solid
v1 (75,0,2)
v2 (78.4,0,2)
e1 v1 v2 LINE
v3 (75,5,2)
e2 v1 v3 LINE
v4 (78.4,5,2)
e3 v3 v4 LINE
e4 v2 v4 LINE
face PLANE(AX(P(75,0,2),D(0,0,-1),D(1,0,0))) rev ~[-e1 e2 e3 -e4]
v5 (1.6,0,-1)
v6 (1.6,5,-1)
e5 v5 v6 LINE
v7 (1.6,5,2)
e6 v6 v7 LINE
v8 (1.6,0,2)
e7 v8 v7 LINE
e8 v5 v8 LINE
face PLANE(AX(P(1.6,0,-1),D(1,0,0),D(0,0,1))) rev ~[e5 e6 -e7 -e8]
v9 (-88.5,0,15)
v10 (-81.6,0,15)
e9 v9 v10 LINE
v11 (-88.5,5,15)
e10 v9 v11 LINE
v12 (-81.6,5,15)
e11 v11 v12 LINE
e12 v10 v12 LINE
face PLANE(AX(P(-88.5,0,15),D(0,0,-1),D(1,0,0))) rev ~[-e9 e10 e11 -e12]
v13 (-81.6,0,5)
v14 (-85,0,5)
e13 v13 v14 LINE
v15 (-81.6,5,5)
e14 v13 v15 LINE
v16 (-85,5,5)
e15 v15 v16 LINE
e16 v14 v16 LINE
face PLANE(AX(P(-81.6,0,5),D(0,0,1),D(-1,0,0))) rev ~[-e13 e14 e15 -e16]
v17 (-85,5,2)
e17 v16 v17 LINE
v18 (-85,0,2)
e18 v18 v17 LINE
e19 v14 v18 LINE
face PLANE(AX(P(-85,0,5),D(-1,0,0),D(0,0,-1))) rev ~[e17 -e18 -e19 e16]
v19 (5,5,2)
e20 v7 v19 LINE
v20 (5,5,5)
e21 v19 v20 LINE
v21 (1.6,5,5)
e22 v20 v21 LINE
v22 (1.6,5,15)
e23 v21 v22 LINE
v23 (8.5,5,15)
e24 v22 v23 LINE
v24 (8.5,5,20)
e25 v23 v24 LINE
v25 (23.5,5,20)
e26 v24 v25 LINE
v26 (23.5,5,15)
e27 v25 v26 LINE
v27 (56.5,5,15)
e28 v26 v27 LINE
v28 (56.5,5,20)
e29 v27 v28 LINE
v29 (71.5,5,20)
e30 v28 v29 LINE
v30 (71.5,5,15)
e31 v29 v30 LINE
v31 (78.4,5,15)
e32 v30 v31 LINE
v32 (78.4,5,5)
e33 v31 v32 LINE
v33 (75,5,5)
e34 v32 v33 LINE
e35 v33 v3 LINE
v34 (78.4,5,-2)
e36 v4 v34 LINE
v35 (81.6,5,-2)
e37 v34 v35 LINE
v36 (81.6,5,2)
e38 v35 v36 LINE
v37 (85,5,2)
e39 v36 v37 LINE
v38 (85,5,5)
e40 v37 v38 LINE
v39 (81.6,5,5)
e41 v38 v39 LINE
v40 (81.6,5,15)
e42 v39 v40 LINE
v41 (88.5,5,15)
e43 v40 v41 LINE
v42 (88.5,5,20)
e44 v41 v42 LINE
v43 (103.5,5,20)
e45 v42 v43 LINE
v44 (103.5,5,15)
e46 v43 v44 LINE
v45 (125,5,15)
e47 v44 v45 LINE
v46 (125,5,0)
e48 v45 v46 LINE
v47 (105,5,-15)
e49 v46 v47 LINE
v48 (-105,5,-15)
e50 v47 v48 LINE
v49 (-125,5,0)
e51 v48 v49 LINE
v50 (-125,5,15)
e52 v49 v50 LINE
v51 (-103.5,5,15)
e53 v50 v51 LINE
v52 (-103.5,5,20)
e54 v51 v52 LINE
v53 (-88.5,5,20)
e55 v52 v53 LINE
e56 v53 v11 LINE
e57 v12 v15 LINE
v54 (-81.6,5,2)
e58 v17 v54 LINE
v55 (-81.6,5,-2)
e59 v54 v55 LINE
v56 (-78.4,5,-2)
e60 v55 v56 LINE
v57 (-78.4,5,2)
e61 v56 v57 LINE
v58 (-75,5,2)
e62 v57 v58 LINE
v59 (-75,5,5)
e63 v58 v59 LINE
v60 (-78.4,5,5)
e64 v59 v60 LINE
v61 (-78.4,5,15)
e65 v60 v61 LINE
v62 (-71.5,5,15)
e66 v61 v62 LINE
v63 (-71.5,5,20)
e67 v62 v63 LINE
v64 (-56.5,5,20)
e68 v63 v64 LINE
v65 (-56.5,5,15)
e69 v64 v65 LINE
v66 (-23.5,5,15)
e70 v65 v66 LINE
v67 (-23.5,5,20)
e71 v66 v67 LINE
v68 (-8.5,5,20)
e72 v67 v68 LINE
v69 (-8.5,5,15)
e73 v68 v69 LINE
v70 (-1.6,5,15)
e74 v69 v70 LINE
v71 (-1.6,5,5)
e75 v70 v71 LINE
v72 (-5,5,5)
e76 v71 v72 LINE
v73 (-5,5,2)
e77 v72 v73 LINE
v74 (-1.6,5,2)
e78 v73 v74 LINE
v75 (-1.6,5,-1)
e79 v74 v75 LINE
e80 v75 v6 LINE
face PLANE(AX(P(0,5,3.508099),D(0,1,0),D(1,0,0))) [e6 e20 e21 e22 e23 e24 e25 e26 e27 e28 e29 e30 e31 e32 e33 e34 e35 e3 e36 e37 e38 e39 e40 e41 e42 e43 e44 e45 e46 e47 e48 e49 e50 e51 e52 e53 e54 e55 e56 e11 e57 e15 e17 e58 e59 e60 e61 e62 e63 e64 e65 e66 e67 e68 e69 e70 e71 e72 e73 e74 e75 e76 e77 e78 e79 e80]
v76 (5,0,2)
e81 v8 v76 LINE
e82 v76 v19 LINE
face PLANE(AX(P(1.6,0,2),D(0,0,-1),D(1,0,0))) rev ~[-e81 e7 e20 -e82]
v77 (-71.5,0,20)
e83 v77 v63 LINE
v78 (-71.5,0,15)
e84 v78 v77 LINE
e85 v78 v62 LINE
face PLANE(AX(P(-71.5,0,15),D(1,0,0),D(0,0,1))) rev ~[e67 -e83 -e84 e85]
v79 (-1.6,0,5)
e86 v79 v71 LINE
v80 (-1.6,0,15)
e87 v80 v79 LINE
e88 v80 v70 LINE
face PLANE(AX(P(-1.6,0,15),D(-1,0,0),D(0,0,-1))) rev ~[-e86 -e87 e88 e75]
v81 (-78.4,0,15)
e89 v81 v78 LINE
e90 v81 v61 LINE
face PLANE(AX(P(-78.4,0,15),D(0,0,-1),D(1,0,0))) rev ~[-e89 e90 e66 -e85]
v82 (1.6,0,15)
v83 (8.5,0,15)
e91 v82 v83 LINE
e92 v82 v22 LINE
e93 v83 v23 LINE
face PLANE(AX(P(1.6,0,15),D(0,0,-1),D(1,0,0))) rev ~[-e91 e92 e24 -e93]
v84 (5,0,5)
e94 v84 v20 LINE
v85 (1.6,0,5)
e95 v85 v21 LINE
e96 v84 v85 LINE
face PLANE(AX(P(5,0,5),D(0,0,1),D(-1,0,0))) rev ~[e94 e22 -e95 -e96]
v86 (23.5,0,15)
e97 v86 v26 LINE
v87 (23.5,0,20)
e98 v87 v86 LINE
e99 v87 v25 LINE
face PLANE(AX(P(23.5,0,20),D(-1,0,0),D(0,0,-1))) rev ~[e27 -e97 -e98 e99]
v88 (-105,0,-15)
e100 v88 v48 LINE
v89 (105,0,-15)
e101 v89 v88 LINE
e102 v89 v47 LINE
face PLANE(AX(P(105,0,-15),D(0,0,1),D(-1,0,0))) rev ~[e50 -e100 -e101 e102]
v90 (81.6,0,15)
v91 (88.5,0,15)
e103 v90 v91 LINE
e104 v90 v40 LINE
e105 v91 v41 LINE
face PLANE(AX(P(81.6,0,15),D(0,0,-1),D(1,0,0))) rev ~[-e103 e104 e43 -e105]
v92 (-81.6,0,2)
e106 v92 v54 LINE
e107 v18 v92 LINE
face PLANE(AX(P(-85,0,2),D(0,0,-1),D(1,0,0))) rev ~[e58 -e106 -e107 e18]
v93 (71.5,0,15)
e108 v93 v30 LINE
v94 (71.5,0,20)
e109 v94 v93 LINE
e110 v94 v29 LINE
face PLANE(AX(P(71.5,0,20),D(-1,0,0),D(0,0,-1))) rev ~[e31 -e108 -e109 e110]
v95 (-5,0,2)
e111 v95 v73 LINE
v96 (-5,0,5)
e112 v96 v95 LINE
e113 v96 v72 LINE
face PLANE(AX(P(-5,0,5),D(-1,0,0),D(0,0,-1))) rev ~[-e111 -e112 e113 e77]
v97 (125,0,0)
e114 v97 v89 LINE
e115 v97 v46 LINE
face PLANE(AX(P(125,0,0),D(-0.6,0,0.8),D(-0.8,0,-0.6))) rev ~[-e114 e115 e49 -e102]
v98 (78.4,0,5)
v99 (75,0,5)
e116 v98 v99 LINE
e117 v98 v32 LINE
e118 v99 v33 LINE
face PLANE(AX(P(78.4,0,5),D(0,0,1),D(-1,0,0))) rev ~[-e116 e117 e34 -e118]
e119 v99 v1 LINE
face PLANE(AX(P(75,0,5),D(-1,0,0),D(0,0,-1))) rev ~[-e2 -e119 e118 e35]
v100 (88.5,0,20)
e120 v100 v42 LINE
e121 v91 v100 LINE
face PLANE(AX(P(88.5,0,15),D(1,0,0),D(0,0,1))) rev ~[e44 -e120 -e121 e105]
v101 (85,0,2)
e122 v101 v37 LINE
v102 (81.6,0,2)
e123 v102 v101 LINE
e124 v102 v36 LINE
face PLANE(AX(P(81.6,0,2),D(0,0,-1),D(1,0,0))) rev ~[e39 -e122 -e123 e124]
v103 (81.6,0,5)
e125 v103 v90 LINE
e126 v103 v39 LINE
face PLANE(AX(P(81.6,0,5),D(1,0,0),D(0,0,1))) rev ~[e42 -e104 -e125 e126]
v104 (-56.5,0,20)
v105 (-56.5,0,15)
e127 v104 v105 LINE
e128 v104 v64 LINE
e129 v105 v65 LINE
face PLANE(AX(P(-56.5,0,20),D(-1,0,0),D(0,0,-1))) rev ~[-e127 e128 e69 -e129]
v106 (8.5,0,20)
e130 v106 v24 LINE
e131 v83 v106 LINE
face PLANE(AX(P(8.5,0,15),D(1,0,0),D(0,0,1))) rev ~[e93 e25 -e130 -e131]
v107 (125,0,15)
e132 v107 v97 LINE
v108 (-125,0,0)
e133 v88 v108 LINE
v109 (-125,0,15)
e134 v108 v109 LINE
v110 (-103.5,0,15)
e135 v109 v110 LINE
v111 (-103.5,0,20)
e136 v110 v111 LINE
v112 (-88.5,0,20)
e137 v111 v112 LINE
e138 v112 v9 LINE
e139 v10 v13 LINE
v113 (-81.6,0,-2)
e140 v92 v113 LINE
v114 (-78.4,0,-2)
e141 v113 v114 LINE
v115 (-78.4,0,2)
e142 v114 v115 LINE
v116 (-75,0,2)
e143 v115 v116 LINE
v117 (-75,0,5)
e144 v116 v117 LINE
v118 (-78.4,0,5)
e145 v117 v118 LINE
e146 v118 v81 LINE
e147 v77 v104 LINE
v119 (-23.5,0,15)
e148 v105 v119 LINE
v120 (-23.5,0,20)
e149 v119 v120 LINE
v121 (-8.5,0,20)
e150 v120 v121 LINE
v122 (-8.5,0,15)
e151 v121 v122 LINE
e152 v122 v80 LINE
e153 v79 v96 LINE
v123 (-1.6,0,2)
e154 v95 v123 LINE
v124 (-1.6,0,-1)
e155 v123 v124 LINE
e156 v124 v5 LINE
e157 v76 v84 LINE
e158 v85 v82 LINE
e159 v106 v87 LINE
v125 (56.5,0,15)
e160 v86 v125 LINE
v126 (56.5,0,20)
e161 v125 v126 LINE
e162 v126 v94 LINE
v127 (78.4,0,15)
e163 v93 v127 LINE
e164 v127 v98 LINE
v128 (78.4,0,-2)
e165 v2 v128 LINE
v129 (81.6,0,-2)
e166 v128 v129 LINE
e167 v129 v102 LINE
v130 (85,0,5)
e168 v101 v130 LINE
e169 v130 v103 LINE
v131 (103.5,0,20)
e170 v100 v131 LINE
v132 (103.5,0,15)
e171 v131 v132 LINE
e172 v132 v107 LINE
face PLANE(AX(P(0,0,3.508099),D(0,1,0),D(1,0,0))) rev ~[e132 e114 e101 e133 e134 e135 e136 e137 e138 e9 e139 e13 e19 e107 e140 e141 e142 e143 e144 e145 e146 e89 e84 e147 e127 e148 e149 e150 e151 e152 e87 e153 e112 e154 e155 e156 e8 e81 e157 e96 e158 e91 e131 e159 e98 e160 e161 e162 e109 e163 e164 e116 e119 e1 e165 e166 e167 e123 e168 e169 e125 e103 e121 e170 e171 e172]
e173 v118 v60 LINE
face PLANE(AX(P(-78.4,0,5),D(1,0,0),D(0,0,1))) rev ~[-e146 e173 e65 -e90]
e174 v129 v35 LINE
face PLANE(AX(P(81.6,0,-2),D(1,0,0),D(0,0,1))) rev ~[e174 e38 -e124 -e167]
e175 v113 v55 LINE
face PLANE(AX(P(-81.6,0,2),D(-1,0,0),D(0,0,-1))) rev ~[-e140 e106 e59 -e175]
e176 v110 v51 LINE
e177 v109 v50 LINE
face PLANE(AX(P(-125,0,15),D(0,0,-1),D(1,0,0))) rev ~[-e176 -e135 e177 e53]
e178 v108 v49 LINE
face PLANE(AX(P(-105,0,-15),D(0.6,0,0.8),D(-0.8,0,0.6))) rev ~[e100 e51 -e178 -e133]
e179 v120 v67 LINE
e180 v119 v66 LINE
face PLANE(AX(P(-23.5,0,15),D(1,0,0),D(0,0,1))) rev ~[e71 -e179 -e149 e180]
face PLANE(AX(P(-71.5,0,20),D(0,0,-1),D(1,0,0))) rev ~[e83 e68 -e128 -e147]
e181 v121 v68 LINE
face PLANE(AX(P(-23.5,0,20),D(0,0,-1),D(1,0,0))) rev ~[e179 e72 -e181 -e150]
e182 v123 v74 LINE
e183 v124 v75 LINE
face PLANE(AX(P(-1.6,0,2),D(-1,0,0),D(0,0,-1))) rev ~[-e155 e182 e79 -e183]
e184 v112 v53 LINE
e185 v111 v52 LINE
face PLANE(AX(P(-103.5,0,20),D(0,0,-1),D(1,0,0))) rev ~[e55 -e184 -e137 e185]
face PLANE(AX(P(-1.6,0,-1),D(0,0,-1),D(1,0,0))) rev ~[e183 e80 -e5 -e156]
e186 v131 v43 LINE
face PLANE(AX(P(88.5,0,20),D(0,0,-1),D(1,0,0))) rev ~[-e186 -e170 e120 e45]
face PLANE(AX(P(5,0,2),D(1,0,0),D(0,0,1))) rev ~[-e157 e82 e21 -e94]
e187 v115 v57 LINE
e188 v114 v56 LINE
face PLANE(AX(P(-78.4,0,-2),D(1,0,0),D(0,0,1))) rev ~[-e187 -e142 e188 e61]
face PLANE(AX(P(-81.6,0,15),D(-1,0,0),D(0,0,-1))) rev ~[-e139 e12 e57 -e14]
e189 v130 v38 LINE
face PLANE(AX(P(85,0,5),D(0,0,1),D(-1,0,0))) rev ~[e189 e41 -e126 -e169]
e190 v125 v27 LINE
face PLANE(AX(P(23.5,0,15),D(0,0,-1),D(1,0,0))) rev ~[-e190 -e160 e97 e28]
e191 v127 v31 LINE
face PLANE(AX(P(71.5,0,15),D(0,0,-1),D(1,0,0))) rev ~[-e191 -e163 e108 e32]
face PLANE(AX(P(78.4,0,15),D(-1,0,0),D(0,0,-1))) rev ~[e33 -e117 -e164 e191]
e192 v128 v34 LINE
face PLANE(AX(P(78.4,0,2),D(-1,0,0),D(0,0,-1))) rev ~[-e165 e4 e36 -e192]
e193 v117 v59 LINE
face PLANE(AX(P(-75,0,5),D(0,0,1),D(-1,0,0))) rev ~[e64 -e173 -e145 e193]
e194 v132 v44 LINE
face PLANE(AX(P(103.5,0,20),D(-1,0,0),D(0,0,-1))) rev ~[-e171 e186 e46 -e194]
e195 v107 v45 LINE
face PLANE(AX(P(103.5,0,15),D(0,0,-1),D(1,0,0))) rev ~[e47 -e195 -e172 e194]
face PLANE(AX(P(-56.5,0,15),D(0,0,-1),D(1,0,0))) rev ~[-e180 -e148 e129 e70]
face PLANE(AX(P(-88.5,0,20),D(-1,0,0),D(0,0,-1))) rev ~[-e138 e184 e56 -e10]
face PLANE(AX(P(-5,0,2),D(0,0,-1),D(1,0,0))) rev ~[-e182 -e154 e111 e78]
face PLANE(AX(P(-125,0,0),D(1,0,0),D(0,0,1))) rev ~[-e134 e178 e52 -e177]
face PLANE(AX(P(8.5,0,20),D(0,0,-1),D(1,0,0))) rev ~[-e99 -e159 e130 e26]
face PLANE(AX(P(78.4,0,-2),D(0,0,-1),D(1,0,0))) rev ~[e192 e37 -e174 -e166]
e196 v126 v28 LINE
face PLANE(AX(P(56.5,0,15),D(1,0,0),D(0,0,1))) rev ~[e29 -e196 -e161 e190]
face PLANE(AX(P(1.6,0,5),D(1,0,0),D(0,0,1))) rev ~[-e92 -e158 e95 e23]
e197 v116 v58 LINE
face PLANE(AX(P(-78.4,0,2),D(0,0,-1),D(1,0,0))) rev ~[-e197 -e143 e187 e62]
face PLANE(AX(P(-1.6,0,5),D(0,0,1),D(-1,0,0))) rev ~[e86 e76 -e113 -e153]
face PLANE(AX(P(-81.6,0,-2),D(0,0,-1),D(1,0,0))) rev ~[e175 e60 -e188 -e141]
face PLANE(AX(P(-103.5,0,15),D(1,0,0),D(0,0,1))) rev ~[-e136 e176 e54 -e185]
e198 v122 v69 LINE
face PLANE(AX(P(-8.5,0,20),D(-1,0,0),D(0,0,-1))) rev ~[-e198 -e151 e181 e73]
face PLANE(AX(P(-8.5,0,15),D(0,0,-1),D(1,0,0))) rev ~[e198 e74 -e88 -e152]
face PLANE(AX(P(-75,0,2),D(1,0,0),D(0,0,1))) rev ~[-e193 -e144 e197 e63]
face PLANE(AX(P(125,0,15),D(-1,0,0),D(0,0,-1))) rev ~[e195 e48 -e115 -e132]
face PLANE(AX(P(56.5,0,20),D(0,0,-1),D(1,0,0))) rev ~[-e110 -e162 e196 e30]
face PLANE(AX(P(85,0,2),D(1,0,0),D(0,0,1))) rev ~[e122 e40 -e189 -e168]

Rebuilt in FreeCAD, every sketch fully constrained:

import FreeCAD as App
import Part
import Sketcher

V = App.Vector
Q = App.Units.Quantity


def add_polygon(sketch, points):
    """Adds a closed chain of lines whose ends are joined by coincident constraints."""
    first, n = sketch.GeometryCount, len(points)
    for a, b in zip(points, points[1:] + points[:1]):
        sketch.addGeometry(Part.LineSegment(App.Vector(*a, 0), App.Vector(*b, 0)), False)
    for i in range(n):
        sketch.addConstraint(Sketcher.Constraint("Coincident", first + i, 2, first + (i + 1) % n, 1))

doc = App.newDocument("Part")
params = doc.addObject("Spreadsheet::Sheet", "Params")
for row, (alias, value) in enumerate([
    ("sketch1_width", "15 mm"),
    ("sketch1_width2", "33 mm"),
    ("sketch1_width3", "210 mm"),
    ("sketch1_height", "5 mm"),
    ("sketch1_height2", "10 mm"),
    ("pad1_length", "5 mm"),
], start=1):
    params.set(f"A{row}", alias)
    params.set(f"B{row}", "=" + value)
    params.setAlias(f"B{row}", alias)

body = doc.addObject("PartDesign::Body", "Body")

sketch1 = body.newObject("Sketcher::SketchObject", "Sketch")
sketch1.AttachmentSupport = (doc.getObject("XZ_Plane"), [""])
sketch1.MapMode = "FlatFace"
add_polygon(sketch1, [(-125, 15), (-103.5, 15), (-103.5, 20), (-88.5, 20), (-88.5, 15), (-81.6, 15), (-81.6, 5), (-85, 5), (-85, 2), (-81.6, 2), (-81.6, -2), (-78.4, -2), (-78.4, 2), (-75, 2), (-75, 5), (-78.4, 5), (-78.4, 15), (-71.5, 15), (-71.5, 20), (-56.5, 20), (-56.5, 15), (-23.5, 15), (-23.5, 20), (-8.5, 20), (-8.5, 15), (-1.6, 15), (-1.6, 5), (-5, 5), (-5, 2), (-1.6, 2), (-1.6, -1), (1.6, -1), (1.6, 2), (5, 2), (5, 5), (1.6, 5), (1.6, 15), (8.5, 15), (8.5, 20), (23.5, 20), (23.5, 15), (56.5, 15), (56.5, 20), (71.5, 20), (71.5, 15), (78.4, 15), (78.4, 5), (75, 5), (75, 2), (78.4, 2), (78.4, -2), (81.6, -2), (81.6, 2), (85, 2), (85, 5), (81.6, 5), (81.6, 15), (88.5, 15), (88.5, 20), (103.5, 20), (103.5, 15), (125, 15), (125, 0), (105, -15), (-105, -15), (-125, 0)])
sketch1.addConstraint(Sketcher.Constraint("Horizontal", 0))
sketch1.addConstraint(Sketcher.Constraint("Vertical", 1))
sketch1.addConstraint(Sketcher.Constraint("Horizontal", 2))
sketch1.addConstraint(Sketcher.Constraint("Vertical", 3))
sketch1.addConstraint(Sketcher.Constraint("Horizontal", 4))
sketch1.addConstraint(Sketcher.Constraint("Vertical", 5))
sketch1.addConstraint(Sketcher.Constraint("Horizontal", 6))
sketch1.addConstraint(Sketcher.Constraint("Vertical", 7))
sketch1.addConstraint(Sketcher.Constraint("Horizontal", 8))
sketch1.addConstraint(Sketcher.Constraint("Vertical", 9))
sketch1.addConstraint(Sketcher.Constraint("Horizontal", 10))
sketch1.addConstraint(Sketcher.Constraint("Vertical", 11))
sketch1.addConstraint(Sketcher.Constraint("Horizontal", 12))
sketch1.addConstraint(Sketcher.Constraint("Vertical", 13))
sketch1.addConstraint(Sketcher.Constraint("Horizontal", 14))
sketch1.addConstraint(Sketcher.Constraint("Vertical", 15))
sketch1.addConstraint(Sketcher.Constraint("Horizontal", 16))
sketch1.addConstraint(Sketcher.Constraint("Vertical", 17))
sketch1.addConstraint(Sketcher.Constraint("Horizontal", 18))
sketch1.addConstraint(Sketcher.Constraint("Vertical", 19))
sketch1.addConstraint(Sketcher.Constraint("Horizontal", 20))
sketch1.addConstraint(Sketcher.Constraint("Vertical", 21))
sketch1.addConstraint(Sketcher.Constraint("Horizontal", 22))
sketch1.addConstraint(Sketcher.Constraint("Vertical", 23))
sketch1.addConstraint(Sketcher.Constraint("Horizontal", 24))
sketch1.addConstraint(Sketcher.Constraint("Vertical", 25))
sketch1.addConstraint(Sketcher.Constraint("Horizontal", 26))
sketch1.addConstraint(Sketcher.Constraint("Vertical", 27))
sketch1.addConstraint(Sketcher.Constraint("Horizontal", 28))
sketch1.addConstraint(Sketcher.Constraint("Vertical", 29))
sketch1.addConstraint(Sketcher.Constraint("Horizontal", 30))
sketch1.addConstraint(Sketcher.Constraint("Vertical", 31))
sketch1.addConstraint(Sketcher.Constraint("Horizontal", 32))
sketch1.addConstraint(Sketcher.Constraint("Vertical", 33))
sketch1.addConstraint(Sketcher.Constraint("Horizontal", 34))
sketch1.addConstraint(Sketcher.Constraint("Vertical", 35))
sketch1.addConstraint(Sketcher.Constraint("Horizontal", 36))
sketch1.addConstraint(Sketcher.Constraint("Vertical", 37))
sketch1.addConstraint(Sketcher.Constraint("Horizontal", 38))
sketch1.addConstraint(Sketcher.Constraint("Vertical", 39))
sketch1.addConstraint(Sketcher.Constraint("Horizontal", 40))
sketch1.addConstraint(Sketcher.Constraint("Vertical", 41))
sketch1.addConstraint(Sketcher.Constraint("Horizontal", 42))
sketch1.addConstraint(Sketcher.Constraint("Vertical", 43))
sketch1.addConstraint(Sketcher.Constraint("Horizontal", 44))
sketch1.addConstraint(Sketcher.Constraint("Vertical", 45))
sketch1.addConstraint(Sketcher.Constraint("Horizontal", 46))
sketch1.addConstraint(Sketcher.Constraint("Vertical", 47))
sketch1.addConstraint(Sketcher.Constraint("Horizontal", 48))
sketch1.addConstraint(Sketcher.Constraint("Vertical", 49))
sketch1.addConstraint(Sketcher.Constraint("Horizontal", 50))
sketch1.addConstraint(Sketcher.Constraint("Vertical", 51))
sketch1.addConstraint(Sketcher.Constraint("Horizontal", 52))
sketch1.addConstraint(Sketcher.Constraint("Vertical", 53))
sketch1.addConstraint(Sketcher.Constraint("Horizontal", 54))
sketch1.addConstraint(Sketcher.Constraint("Vertical", 55))
sketch1.addConstraint(Sketcher.Constraint("Horizontal", 56))
sketch1.addConstraint(Sketcher.Constraint("Vertical", 57))
sketch1.addConstraint(Sketcher.Constraint("Horizontal", 58))
sketch1.addConstraint(Sketcher.Constraint("Vertical", 59))
sketch1.addConstraint(Sketcher.Constraint("Horizontal", 60))
sketch1.addConstraint(Sketcher.Constraint("Vertical", 61))
sketch1.addConstraint(Sketcher.Constraint("Horizontal", 63))
sketch1.addConstraint(Sketcher.Constraint("Vertical", 65))
sketch1.addConstraint(Sketcher.Constraint("Symmetric", 10, 2, 48, 2, -1, 1))
sketch1.addConstraint(Sketcher.Constraint("Symmetric", 8, 2, 50, 2, -1, 1))
sketch1.addConstraint(Sketcher.Constraint("Symmetric", 61, 2, 64, 2, -1, 1))
sketch1.addConstraint(Sketcher.Constraint("Symmetric", 28, 2, 31, 2, -2))
sketch1.addConstraint(Sketcher.Constraint("Symmetric", 26, 2, 33, 2, -2))
sketch1.addConstraint(Sketcher.Constraint("Symmetric", 24, 2, 35, 2, -2))
sketch1.addConstraint(Sketcher.Constraint("Symmetric", 22, 2, 37, 2, -2))
sketch1.addConstraint(Sketcher.Constraint("Symmetric", 20, 2, 39, 2, -2))
sketch1.addConstraint(Sketcher.Constraint("Symmetric", 18, 2, 41, 2, -2))
sketch1.addConstraint(Sketcher.Constraint("Symmetric", 16, 2, 43, 2, -2))
sketch1.addConstraint(Sketcher.Constraint("Symmetric", 14, 2, 45, 2, -2))
sketch1.addConstraint(Sketcher.Constraint("Symmetric", 12, 2, 47, 2, -2))
sketch1.addConstraint(Sketcher.Constraint("Symmetric", 7, 2, 52, 2, -2))
sketch1.addConstraint(Sketcher.Constraint("Symmetric", 5, 2, 54, 2, -2))
sketch1.addConstraint(Sketcher.Constraint("Symmetric", 3, 2, 56, 2, -2))
sketch1.addConstraint(Sketcher.Constraint("Symmetric", 1, 2, 58, 2, -2))
sketch1.addConstraint(Sketcher.Constraint("PointOnObject", 61, 2, -1))
sketch1.addConstraint(Sketcher.Constraint("Horizontal", 0, 2, 3, 2))
sketch1.addConstraint(Sketcher.Constraint("Horizontal", 8, 2, 11, 2))
sketch1.addConstraint(Sketcher.Constraint("Horizontal", 6, 2, 13, 2))
sketch1.addConstraint(Sketcher.Constraint("Horizontal", 4, 2, 15, 2))
sketch1.addConstraint(Sketcher.Constraint("Horizontal", 2, 2, 17, 2))
sketch1.addConstraint(Sketcher.Constraint("Horizontal", 16, 2, 19, 2))
sketch1.addConstraint(Sketcher.Constraint("Horizontal", 18, 2, 21, 2))
sketch1.addConstraint(Sketcher.Constraint("Horizontal", 20, 2, 23, 2))
sketch1.addConstraint(Sketcher.Constraint("Horizontal", 14, 2, 25, 2))
sketch1.addConstraint(Sketcher.Constraint("Horizontal", 12, 2, 27, 2))
sketch1.addConstraint(Sketcher.Constraint("Horizontal", 56, 2, 59, 2))
sketch1.addConstraint(Sketcher.Constraint("Vertical", 5, 2, 8, 2))
sketch1.addConstraint(Sketcher.Constraint("Vertical", 11, 2, 14, 2))
sketch1.addConstraint(Sketcher.Constraint("Vertical", 25, 2, 28, 2))
sketch1.addConstraint(Sketcher.Constraint("Equal", 8, 12))
sketch1.addConstraint(Sketcher.Constraint("Equal", 4, 16))
sketch1.addConstraint(Sketcher.Constraint("Equal", 2, 18))
sketch1.addConstraint(Sketcher.Constraint("Equal", 18, 22))
sketch1.addConstraint(Sketcher.Constraint("Equal", 16, 24))
sketch1.addConstraint(Sketcher.Constraint("Equal", 14, 26))
sketch1.addConstraint(Sketcher.Constraint("Equal", 10, 30))
sketch1.addConstraint(Sketcher.Constraint("Equal", 27, 29))
sketch1.addConstraint(Sketcher.Constraint("Equal", 58, 61))
sketch1.addConstraint(Sketcher.Constraint("Equal", 62, 64))
sketch1.addConstraint(Sketcher.Constraint("DistanceX", 2, 1, 2, 2, Q("15 mm")))
sketch1.addConstraint(Sketcher.Constraint("DistanceX", 20, 1, 20, 2, Q("33 mm")))
sketch1.addConstraint(Sketcher.Constraint("DistanceX", 63, 2, 63, 1, Q("210 mm")))
sketch1.addConstraint(Sketcher.Constraint("DistanceY", 1, 1, 1, 2, Q("5 mm")))
sketch1.addConstraint(Sketcher.Constraint("DistanceY", 5, 2, 5, 1, Q("10 mm")))
sketch1.addConstraint(Sketcher.Constraint("DistanceY", 7, 2, 7, 1, Q("3 mm")))
sketch1.addConstraint(Sketcher.Constraint("Distance", 62, Q("25 mm")))
sketch1.addConstraint(Sketcher.Constraint("DistanceX", 0, 1, 0, 2, Q("21.5 mm")))
sketch1.addConstraint(Sketcher.Constraint("DistanceX", 4, 1, 4, 2, Q("6.9 mm")))
sketch1.addConstraint(Sketcher.Constraint("DistanceX", 6, 2, 6, 1, Q("3.4 mm")))
sketch1.addConstraint(Sketcher.Constraint("DistanceX", 10, 1, 10, 2, Q("3.2 mm")))
sketch1.setExpression("Constraints[171]", "Params.sketch1_width")
sketch1.setExpression("Constraints[172]", "Params.sketch1_width2")
sketch1.setExpression("Constraints[173]", "Params.sketch1_width3")
sketch1.setExpression("Constraints[174]", "Params.sketch1_height")
sketch1.setExpression("Constraints[175]", "Params.sketch1_height2")
pad1 = body.newObject("PartDesign::Pad", "Pad")
pad1.Profile = sketch1
pad1.setExpression("Length", "Params.pad1_length")
pad1.Reversed = True

doc.recompute()
